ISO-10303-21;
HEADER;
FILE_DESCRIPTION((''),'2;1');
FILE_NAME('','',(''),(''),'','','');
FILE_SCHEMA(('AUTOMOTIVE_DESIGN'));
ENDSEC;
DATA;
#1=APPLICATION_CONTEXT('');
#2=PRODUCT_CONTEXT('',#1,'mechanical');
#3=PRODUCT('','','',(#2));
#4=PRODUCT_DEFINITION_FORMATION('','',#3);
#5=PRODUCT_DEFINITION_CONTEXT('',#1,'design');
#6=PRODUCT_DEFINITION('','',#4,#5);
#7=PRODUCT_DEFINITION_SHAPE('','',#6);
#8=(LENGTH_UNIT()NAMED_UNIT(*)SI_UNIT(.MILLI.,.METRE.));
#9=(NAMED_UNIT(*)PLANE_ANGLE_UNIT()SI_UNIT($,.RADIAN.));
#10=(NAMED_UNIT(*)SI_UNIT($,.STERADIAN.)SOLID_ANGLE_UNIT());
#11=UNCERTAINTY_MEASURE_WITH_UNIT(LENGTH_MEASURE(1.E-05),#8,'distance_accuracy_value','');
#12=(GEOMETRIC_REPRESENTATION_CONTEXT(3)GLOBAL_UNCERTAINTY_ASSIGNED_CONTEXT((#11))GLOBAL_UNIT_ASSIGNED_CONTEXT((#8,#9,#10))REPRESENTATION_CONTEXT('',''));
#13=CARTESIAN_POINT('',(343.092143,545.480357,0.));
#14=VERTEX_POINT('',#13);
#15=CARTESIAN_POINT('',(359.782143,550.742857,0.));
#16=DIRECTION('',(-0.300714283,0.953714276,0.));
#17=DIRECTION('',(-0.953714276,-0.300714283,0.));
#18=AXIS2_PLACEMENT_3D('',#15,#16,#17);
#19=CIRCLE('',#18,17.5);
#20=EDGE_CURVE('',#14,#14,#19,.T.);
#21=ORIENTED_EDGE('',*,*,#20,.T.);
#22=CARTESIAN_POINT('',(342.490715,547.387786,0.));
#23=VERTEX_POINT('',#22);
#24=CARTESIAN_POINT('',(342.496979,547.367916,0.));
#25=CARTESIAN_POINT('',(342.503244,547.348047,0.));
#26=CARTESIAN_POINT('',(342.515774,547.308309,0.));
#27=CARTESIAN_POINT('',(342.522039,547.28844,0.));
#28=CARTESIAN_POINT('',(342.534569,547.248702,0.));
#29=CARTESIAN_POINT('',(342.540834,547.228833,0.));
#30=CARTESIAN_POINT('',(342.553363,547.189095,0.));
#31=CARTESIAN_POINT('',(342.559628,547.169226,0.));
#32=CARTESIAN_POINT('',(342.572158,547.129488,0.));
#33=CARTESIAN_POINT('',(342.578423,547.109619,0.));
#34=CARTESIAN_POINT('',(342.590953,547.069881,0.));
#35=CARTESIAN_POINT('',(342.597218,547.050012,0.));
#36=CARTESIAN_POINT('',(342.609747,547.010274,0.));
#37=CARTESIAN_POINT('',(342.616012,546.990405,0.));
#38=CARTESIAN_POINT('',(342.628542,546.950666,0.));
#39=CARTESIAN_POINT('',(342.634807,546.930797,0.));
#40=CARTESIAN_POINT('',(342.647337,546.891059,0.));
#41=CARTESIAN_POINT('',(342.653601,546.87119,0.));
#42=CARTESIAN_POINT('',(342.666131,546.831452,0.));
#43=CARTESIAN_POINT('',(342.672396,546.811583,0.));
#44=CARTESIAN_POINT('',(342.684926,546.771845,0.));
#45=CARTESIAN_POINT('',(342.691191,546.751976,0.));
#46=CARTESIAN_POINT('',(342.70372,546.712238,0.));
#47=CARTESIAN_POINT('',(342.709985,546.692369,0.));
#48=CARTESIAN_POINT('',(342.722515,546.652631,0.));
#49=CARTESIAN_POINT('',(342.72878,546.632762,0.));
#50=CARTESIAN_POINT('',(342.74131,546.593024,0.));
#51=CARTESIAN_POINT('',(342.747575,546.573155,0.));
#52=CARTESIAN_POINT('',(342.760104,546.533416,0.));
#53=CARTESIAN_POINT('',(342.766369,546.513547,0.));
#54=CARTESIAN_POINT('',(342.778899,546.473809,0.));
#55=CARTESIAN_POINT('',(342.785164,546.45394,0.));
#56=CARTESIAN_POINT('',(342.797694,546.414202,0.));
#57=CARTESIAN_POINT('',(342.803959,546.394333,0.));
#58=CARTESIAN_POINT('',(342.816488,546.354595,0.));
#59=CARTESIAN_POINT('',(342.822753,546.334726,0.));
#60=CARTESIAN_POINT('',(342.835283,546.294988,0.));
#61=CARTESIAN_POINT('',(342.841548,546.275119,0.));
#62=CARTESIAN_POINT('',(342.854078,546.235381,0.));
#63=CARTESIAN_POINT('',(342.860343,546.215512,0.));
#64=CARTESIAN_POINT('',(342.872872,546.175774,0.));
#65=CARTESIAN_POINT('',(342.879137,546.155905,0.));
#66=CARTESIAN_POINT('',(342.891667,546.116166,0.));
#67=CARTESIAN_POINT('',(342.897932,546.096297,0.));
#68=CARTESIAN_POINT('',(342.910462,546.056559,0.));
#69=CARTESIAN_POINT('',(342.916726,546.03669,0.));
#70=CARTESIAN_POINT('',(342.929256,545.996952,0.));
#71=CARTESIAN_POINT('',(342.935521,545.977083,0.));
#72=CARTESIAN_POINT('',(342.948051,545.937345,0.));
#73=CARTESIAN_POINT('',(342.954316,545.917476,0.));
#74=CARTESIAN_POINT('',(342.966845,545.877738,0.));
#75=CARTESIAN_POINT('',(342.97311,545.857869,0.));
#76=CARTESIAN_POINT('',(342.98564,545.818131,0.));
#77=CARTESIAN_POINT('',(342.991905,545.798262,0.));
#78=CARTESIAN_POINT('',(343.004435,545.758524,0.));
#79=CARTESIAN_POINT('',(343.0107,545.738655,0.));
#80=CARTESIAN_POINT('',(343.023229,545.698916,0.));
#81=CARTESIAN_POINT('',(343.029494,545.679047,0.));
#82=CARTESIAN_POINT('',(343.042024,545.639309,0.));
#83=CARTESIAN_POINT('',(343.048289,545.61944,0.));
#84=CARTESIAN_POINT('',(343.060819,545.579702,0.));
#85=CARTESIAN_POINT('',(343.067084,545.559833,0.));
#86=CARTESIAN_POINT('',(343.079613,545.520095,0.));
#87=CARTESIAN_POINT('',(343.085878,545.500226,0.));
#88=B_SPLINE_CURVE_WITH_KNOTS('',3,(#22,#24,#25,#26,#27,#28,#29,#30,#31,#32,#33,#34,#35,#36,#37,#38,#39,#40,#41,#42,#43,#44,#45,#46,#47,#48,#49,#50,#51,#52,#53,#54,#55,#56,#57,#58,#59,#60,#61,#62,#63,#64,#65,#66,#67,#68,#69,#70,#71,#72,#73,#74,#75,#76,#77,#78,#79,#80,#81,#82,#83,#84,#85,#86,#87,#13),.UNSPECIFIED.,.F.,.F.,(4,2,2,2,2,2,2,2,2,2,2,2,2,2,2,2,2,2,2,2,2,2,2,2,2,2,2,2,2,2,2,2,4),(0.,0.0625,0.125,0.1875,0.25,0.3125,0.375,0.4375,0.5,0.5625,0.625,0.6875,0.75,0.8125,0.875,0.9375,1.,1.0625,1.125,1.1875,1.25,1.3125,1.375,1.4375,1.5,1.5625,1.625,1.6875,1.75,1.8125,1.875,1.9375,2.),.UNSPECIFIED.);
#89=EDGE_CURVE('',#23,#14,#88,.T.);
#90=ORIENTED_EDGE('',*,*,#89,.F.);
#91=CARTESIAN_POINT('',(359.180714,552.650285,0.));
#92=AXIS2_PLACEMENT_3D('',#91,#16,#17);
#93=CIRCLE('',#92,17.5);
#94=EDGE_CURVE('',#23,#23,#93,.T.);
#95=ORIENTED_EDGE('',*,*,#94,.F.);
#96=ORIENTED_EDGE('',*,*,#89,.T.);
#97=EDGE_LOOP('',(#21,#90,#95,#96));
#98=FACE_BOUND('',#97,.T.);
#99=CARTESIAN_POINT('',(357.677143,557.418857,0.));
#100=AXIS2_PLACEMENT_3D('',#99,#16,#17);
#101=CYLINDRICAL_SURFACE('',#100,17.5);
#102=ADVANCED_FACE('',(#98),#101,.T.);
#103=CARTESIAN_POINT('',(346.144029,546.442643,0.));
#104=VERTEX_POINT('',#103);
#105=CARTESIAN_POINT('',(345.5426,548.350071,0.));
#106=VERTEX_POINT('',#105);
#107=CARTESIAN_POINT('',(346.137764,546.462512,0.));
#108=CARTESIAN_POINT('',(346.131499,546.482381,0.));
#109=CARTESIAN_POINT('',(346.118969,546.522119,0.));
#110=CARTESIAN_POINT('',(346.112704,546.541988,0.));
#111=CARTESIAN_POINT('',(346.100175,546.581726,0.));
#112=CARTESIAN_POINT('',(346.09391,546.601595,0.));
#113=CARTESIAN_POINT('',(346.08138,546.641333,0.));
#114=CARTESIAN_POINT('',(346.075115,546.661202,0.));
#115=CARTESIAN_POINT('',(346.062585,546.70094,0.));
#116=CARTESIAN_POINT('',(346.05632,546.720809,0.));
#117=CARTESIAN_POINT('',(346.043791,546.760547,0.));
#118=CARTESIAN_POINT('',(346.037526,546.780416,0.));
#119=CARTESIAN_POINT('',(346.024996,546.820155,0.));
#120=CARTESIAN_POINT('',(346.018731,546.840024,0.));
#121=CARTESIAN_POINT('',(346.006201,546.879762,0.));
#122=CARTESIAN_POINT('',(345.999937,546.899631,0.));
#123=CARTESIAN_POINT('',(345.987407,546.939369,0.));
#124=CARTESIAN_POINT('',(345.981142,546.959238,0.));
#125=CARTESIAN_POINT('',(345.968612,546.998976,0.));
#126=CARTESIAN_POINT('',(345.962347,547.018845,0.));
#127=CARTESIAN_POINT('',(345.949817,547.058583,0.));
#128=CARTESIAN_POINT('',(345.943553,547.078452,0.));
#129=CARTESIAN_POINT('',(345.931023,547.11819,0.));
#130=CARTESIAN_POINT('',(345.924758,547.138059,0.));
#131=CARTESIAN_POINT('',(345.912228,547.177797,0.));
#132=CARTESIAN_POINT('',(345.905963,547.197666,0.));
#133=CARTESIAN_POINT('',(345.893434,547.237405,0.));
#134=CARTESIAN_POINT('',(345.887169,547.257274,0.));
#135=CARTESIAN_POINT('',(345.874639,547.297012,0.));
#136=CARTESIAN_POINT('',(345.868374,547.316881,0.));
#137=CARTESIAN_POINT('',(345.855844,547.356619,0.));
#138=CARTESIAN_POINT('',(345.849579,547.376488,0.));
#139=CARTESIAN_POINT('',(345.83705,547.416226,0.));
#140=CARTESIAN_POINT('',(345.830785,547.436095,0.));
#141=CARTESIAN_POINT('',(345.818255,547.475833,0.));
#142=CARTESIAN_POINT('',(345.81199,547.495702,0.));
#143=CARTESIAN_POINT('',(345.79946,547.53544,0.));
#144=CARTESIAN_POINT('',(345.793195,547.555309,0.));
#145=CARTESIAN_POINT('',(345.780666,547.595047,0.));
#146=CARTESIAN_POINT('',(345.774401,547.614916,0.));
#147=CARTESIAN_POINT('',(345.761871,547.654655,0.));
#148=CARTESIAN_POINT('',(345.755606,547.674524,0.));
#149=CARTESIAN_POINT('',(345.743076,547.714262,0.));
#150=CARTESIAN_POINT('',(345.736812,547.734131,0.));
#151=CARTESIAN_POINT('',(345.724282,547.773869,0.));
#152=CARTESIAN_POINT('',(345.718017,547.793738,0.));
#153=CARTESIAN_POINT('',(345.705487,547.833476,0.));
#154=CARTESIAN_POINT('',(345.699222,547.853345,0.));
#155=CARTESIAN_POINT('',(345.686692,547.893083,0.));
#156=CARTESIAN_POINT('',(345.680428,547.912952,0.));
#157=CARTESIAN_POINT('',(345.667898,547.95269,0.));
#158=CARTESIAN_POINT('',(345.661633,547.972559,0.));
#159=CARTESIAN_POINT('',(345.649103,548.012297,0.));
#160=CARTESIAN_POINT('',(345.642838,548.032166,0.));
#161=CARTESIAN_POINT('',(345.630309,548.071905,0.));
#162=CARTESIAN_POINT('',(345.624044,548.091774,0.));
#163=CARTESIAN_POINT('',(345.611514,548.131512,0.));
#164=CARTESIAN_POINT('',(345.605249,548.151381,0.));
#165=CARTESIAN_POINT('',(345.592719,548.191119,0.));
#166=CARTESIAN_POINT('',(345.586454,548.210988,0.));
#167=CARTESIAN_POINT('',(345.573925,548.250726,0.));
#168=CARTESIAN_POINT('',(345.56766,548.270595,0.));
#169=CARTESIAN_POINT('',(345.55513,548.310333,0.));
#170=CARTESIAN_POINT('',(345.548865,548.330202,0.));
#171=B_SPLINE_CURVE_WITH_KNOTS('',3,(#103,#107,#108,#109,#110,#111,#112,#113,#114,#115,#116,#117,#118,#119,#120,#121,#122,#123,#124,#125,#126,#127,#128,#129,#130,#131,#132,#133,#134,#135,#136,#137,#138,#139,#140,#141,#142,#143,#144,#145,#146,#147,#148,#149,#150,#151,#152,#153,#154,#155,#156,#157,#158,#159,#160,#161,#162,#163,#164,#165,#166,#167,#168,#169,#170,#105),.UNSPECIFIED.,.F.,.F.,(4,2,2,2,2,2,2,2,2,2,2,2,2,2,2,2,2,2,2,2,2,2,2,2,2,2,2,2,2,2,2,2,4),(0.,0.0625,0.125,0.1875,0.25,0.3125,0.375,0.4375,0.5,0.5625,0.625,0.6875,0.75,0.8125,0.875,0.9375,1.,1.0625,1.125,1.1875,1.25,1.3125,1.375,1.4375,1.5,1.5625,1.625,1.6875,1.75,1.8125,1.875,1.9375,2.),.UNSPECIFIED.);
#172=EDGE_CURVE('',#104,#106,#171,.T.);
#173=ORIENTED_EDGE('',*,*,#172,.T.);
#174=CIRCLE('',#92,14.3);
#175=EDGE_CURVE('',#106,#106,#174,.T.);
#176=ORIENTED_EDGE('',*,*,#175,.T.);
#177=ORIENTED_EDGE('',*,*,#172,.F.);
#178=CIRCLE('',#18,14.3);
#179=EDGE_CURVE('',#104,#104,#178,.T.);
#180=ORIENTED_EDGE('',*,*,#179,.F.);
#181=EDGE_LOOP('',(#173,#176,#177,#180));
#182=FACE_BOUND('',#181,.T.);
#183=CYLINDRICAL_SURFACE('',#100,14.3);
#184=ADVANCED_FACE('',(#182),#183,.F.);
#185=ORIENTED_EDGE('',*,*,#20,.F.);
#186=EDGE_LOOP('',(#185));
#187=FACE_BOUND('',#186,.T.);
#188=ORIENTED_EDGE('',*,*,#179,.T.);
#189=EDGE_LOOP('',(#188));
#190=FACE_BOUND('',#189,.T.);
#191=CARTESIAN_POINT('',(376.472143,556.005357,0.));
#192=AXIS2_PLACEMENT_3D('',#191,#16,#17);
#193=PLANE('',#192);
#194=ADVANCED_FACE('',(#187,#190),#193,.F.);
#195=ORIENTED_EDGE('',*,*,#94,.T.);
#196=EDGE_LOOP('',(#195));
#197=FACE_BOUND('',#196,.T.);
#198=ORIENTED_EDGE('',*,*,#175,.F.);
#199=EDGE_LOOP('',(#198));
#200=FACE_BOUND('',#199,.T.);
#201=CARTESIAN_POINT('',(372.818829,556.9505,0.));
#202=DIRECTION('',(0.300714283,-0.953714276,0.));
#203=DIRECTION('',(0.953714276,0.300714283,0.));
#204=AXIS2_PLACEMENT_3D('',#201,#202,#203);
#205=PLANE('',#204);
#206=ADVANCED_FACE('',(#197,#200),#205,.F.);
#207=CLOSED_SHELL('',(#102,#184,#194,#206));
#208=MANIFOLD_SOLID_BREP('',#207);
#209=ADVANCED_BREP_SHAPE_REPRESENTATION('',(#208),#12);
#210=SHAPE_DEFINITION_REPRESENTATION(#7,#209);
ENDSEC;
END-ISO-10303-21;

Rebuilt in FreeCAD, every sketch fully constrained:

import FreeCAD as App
import Part
import Sketcher

V = App.Vector
Q = App.Units.Quantity

doc = App.newDocument("Part")
body = doc.addObject("PartDesign::Body", "Body")

sketch1 = body.newObject("Sketcher::SketchObject", "Sketch")
sketch1.AttachmentSupport = (doc.getObject("XY_Plane"), [""])
sketch1.MapMode = "FlatFace"
sketch1.addGeometry([
    Part.LineSegment(V(375.870714, 557.912785, 0), V(372.818829, 556.9505, 0)),
    Part.LineSegment(V(372.818829, 556.9505, 0), V(373.420257, 555.043071, 0)),
    Part.LineSegment(V(373.420257, 555.043071, 0), V(376.472143, 556.005357, 0)),
    Part.LineSegment(V(376.472143, 556.005357, 0), V(375.870714, 557.912785, 0)),
], False)
sketch1.addGeometry(Part.LineSegment(V(359.180714, 552.650285, 0), V(359.782143, 550.742857, 0)), True)
sketch1.addConstraint([
    Sketcher.Constraint("Coincident", 0, 2, 1, 1),
    Sketcher.Constraint("Coincident", 1, 2, 2, 1),
    Sketcher.Constraint("Coincident", 2, 2, 3, 1),
    Sketcher.Constraint("Coincident", 3, 2, 0, 1),
    Sketcher.Constraint("Perpendicular", 0, 1),
    Sketcher.Constraint("Perpendicular", 1, 2),
    Sketcher.Constraint("Perpendicular", 2, 3),
    Sketcher.Constraint("Parallel", 3, 4),
    Sketcher.Constraint("Equal", 3, 4),
    Sketcher.Constraint("Distance", 1, Q("2 mm")),
    Sketcher.Constraint("Distance", 0, Q("3.2 mm")),
    Sketcher.Constraint("DistanceX", 4, 1, 3, 2, Q("16.69 mm")),
    Sketcher.Constraint("DistanceY", -1, 1, 0, 2, Q("556.9505 mm")),
    Sketcher.Constraint("DistanceY", 4, 1, 3, 2, Q("5.2625 mm")),
    Sketcher.Constraint("DistanceX", -1, 1, 0, 2, Q("372.818829 mm")),
    Sketcher.Constraint("DistanceY", -1, 1, 1, 2, Q("555.043071 mm")),
])
revolution = body.newObject("PartDesign::Revolution", "Revolution")
revolution.Profile = sketch1
revolution.ReferenceAxis = (sketch1, ["Axis0"])
revolution.Angle = 360

doc.recompute()
